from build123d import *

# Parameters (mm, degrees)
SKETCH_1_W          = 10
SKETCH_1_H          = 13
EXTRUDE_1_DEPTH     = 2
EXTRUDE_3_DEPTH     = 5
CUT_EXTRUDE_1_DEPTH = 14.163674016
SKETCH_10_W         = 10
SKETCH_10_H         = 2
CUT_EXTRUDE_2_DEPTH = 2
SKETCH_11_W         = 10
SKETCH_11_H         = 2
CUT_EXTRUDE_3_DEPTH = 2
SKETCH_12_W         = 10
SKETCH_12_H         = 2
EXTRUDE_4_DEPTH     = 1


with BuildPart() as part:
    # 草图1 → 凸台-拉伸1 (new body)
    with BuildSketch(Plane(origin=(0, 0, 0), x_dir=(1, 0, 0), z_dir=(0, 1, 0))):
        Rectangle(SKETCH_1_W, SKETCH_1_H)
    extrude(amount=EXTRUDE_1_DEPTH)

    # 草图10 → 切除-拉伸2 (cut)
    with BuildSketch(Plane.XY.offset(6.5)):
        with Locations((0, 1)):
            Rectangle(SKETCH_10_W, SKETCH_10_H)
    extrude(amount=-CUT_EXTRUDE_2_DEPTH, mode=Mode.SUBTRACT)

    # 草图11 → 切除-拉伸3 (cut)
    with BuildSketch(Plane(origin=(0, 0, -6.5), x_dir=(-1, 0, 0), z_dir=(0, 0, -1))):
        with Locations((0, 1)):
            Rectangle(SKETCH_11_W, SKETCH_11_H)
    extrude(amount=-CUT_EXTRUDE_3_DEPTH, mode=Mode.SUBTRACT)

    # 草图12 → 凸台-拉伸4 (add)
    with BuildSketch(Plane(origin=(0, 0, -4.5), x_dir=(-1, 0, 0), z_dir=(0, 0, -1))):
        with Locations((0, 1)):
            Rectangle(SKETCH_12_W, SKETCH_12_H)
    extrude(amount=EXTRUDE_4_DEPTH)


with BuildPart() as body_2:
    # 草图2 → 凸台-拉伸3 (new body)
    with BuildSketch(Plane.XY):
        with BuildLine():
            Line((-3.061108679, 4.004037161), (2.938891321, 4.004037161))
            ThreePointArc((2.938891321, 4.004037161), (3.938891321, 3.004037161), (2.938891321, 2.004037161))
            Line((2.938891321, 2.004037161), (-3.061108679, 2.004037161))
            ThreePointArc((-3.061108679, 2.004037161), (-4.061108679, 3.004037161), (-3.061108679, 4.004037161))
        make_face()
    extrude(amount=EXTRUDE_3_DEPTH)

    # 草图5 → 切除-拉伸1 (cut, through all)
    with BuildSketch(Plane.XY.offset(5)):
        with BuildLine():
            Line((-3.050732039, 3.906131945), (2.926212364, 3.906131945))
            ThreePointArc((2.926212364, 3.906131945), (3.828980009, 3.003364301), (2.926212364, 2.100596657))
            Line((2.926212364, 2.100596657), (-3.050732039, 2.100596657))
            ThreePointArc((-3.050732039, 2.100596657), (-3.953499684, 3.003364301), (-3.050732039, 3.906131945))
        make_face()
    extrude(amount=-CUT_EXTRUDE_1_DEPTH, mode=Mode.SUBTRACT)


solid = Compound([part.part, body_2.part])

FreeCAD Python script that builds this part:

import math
import FreeCAD as App
import Part
import Sketcher

V = App.Vector
Q = App.Units.Quantity


def add_polygon(sketch, points):
    """Adds a closed chain of lines whose ends are joined by coincident constraints."""
    first, n = sketch.GeometryCount, len(points)
    for a, b in zip(points, points[1:] + points[:1]):
        sketch.addGeometry(Part.LineSegment(App.Vector(*a, 0), App.Vector(*b, 0)), False)
    for i in range(n):
        sketch.addConstraint(Sketcher.Constraint("Coincident", first + i, 2, first + (i + 1) % n, 1))

doc = App.newDocument("Part")
body = doc.addObject("PartDesign::Body", "Body")

# Sketch on XZ plane
sketch1 = body.newObject("Sketcher::SketchObject", "Sketch")
sketch1.AttachmentSupport = (doc.getObject("XZ_Plane"), [""])
sketch1.MapMode = "FlatFace"
add_polygon(sketch1, [(-5, -6), (-5, 6), (5, 6), (5, -6)])  # lines 0-3
sketch1.addConstraint(Sketcher.Constraint("Vertical", 0))
sketch1.addConstraint(Sketcher.Constraint("Horizontal", 1))
sketch1.addConstraint(Sketcher.Constraint("Vertical", 2))
sketch1.addConstraint(Sketcher.Constraint("Horizontal", 3))
sketch1.addConstraint(Sketcher.Constraint("Symmetric", 0, 2, 2, 2, -1, 1))
sketch1.addConstraint(Sketcher.Constraint("DistanceX", 1, 1, 1, 2, Q("10 mm")))
sketch1.addConstraint(Sketcher.Constraint("DistanceY", 0, 1, 0, 2, Q("13 mm")))
pad1 = body.newObject("PartDesign::Pad", "Pad")
pad1.Profile = sketch1
pad1.Length = 2
pad1.Reversed = True

# Sketch on XY plane
sketch2 = body.newObject("Sketcher::SketchObject", "Sketch001")
sketch2.AttachmentSupport = (doc.getObject("XY_Plane"), [""])
sketch2.MapMode = "FlatFace"
sketch2.AttachmentOffset = App.Placement(V(0, 0, 6.5), App.Rotation())
add_polygon(sketch2, [(-5, 2), (-5, 0), (5, 0), (5, 2)])  # lines 0-3
sketch2.addConstraint(Sketcher.Constraint("Vertical", 0))
sketch2.addConstraint(Sketcher.Constraint("Horizontal", 1))
sketch2.addConstraint(Sketcher.Constraint("Vertical", 2))
sketch2.addConstraint(Sketcher.Constraint("Horizontal", 3))
sketch2.addConstraint(Sketcher.Constraint("Symmetric", 0, 2, 1, 2, -1, 1))
sketch2.addConstraint(Sketcher.Constraint("DistanceX", 1, 1, 1, 2, Q("10 mm")))
sketch2.addConstraint(Sketcher.Constraint("DistanceY", 0, 2, 0, 1, Q("2 mm")))
pocket1 = body.newObject("PartDesign::Pocket", "Pocket")
pocket1.Profile = sketch2
pocket1.Length = 2

# Sketch on XY plane
sketch3 = body.newObject("Sketcher::SketchObject", "Sketch002")
sketch3.AttachmentSupport = (doc.getObject("XY_Plane"), [""])
sketch3.MapMode = "FlatFace"
sketch3.AttachmentOffset = App.Placement(V(0, 0, -6.5), App.Rotation())
add_polygon(sketch3, [(5, 2), (5, 0), (-5, 0), (-5, 2)])  # lines 0-3
sketch3.addConstraint(Sketcher.Constraint("Vertical", 0))
sketch3.addConstraint(Sketcher.Constraint("Horizontal", 1))
sketch3.addConstraint(Sketcher.Constraint("Vertical", 2))
sketch3.addConstraint(Sketcher.Constraint("Horizontal", 3))
sketch3.addConstraint(Sketcher.Constraint("Symmetric", 0, 2, 1, 2, -1, 1))
sketch3.addConstraint(Sketcher.Constraint("DistanceX", 1, 2, 1, 1, Q("10 mm")))
sketch3.addConstraint(Sketcher.Constraint("DistanceY", 0, 2, 0, 1, Q("2 mm")))
pocket2 = body.newObject("PartDesign::Pocket", "Pocket001")
pocket2.Profile = sketch3
pocket2.Length = 2
pocket2.Reversed = True

# Sketch on XY plane
sketch4 = body.newObject("Sketcher::SketchObject", "Sketch003")
sketch4.AttachmentSupport = (doc.getObject("XY_Plane"), [""])
sketch4.MapMode = "FlatFace"
sketch4.AttachmentOffset = App.Placement(V(0, 0, -4.5), App.Rotation())
add_polygon(sketch4, [(5, 2), (5, 0), (-5, 0), (-5, 2)])  # lines 0-3
sketch4.addConstraint(Sketcher.Constraint("Vertical", 0))
sketch4.addConstraint(Sketcher.Constraint("Horizontal", 1))
sketch4.addConstraint(Sketcher.Constraint("Vertical", 2))
sketch4.addConstraint(Sketcher.Constraint("Horizontal", 3))
sketch4.addConstraint(Sketcher.Constraint("Symmetric", 0, 2, 1, 2, -1, 1))
sketch4.addConstraint(Sketcher.Constraint("DistanceX", 1, 2, 1, 1, Q("10 mm")))
sketch4.addConstraint(Sketcher.Constraint("DistanceY", 0, 2, 0, 1, Q("2 mm")))
pad2 = body.newObject("PartDesign::Pad", "Pad001")
pad2.Profile = sketch4
pad2.Length = 1
pad2.Reversed = True
body2 = doc.addObject("PartDesign::Body", "Body001")

# Sketch on XY plane
sketch5 = body2.newObject("Sketcher::SketchObject", "Sketch004")
sketch5.AttachmentSupport = (doc.getObject("XY_Plane001"), [""])
sketch5.MapMode = "FlatFace"
sketch5.addGeometry(Part.LineSegment(V(2.9, 4, 0), V(-3.1, 4, 0)), False)
sketch5.addGeometry(Part.ArcOfCircle(Part.Circle(V(-3.1, 3, 0), V(0, 0, 1), 1), math.radians(90), math.radians(270)), False)
sketch5.addGeometry(Part.LineSegment(V(-3.1, 2, 0), V(2.9, 2, 0)), False)
sketch5.addGeometry(Part.ArcOfCircle(Part.Circle(V(2.9, 3, 0), V(0, 0, 1), 1), math.radians(-90), math.radians(90)), False)
sketch5.addConstraint(Sketcher.Constraint("Tangent", 0, 2, 1, 1))
sketch5.addConstraint(Sketcher.Constraint("Tangent", 1, 2, 2, 1))
sketch5.addConstraint(Sketcher.Constraint("Tangent", 2, 2, 3, 1))
sketch5.addConstraint(Sketcher.Constraint("Tangent", 3, 2, 0, 1))
sketch5.addConstraint(Sketcher.Constraint("Horizontal", 0))
sketch5.addConstraint(Sketcher.Constraint("Horizontal", 2))
sketch5.addConstraint(Sketcher.Constraint("Radius", 1, Q("1 mm")))
sketch5.addConstraint(Sketcher.Constraint("DistanceX", 0, 2, 0, 1, Q("6 mm")))
sketch5.addConstraint(Sketcher.Constraint("DistanceX", 1, 3, -1, 1, Q("3.061109 mm")))
sketch5.addConstraint(Sketcher.Constraint("DistanceY", -1, 1, 1, 3, Q("3.004037 mm")))
pad3 = body2.newObject("PartDesign::Pad", "Pad002")
pad3.Profile = sketch5
pad3.Length = 5

# Sketch on XY plane
sketch6 = body2.newObject("Sketcher::SketchObject", "Sketch005")
sketch6.AttachmentSupport = (doc.getObject("XY_Plane001"), [""])
sketch6.MapMode = "FlatFace"
sketch6.AttachmentOffset = App.Placement(V(0, 0, 5), App.Rotation())
sketch6.addGeometry(Part.LineSegment(V(2.9, 3.9, 0), V(-3.1, 3.9, 0)), False)
sketch6.addGeometry(Part.ArcOfCircle(Part.Circle(V(-3.1, 3, 0), V(0, 0, 1), 0.9), math.radians(90), math.radians(270)), False)
sketch6.addGeometry(Part.LineSegment(V(-3.1, 2.1, 0), V(2.9, 2.1, 0)), False)
sketch6.addGeometry(Part.ArcOfCircle(Part.Circle(V(2.9, 3, 0), V(0, 0, 1), 0.9), math.radians(-90), math.radians(90)), False)
sketch6.addConstraint(Sketcher.Constraint("Tangent", 0, 2, 1, 1))
sketch6.addConstraint(Sketcher.Constraint("Tangent", 1, 2, 2, 1))
sketch6.addConstraint(Sketcher.Constraint("Tangent", 2, 2, 3, 1))
sketch6.addConstraint(Sketcher.Constraint("Tangent", 3, 2, 0, 1))
sketch6.addConstraint(Sketcher.Constraint("Horizontal", 0))
sketch6.addConstraint(Sketcher.Constraint("Horizontal", 2))
sketch6.addConstraint(Sketcher.Constraint("Radius", 1, Q("0.902768 mm")))
sketch6.addConstraint(Sketcher.Constraint("DistanceX", 0, 2, 0, 1, Q("5.976944 mm")))
sketch6.addConstraint(Sketcher.Constraint("DistanceY", -1, 1, 0, 2, Q("3.906132 mm")))
sketch6.addConstraint(Sketcher.Constraint("DistanceX", 1, 3, -1, 1, Q("3.050732 mm")))
pocket3 = body2.newObject("PartDesign::Pocket", "Pocket002")
pocket3.Profile = sketch6
pocket3.Type = "ThroughAll"

doc.recompute()
